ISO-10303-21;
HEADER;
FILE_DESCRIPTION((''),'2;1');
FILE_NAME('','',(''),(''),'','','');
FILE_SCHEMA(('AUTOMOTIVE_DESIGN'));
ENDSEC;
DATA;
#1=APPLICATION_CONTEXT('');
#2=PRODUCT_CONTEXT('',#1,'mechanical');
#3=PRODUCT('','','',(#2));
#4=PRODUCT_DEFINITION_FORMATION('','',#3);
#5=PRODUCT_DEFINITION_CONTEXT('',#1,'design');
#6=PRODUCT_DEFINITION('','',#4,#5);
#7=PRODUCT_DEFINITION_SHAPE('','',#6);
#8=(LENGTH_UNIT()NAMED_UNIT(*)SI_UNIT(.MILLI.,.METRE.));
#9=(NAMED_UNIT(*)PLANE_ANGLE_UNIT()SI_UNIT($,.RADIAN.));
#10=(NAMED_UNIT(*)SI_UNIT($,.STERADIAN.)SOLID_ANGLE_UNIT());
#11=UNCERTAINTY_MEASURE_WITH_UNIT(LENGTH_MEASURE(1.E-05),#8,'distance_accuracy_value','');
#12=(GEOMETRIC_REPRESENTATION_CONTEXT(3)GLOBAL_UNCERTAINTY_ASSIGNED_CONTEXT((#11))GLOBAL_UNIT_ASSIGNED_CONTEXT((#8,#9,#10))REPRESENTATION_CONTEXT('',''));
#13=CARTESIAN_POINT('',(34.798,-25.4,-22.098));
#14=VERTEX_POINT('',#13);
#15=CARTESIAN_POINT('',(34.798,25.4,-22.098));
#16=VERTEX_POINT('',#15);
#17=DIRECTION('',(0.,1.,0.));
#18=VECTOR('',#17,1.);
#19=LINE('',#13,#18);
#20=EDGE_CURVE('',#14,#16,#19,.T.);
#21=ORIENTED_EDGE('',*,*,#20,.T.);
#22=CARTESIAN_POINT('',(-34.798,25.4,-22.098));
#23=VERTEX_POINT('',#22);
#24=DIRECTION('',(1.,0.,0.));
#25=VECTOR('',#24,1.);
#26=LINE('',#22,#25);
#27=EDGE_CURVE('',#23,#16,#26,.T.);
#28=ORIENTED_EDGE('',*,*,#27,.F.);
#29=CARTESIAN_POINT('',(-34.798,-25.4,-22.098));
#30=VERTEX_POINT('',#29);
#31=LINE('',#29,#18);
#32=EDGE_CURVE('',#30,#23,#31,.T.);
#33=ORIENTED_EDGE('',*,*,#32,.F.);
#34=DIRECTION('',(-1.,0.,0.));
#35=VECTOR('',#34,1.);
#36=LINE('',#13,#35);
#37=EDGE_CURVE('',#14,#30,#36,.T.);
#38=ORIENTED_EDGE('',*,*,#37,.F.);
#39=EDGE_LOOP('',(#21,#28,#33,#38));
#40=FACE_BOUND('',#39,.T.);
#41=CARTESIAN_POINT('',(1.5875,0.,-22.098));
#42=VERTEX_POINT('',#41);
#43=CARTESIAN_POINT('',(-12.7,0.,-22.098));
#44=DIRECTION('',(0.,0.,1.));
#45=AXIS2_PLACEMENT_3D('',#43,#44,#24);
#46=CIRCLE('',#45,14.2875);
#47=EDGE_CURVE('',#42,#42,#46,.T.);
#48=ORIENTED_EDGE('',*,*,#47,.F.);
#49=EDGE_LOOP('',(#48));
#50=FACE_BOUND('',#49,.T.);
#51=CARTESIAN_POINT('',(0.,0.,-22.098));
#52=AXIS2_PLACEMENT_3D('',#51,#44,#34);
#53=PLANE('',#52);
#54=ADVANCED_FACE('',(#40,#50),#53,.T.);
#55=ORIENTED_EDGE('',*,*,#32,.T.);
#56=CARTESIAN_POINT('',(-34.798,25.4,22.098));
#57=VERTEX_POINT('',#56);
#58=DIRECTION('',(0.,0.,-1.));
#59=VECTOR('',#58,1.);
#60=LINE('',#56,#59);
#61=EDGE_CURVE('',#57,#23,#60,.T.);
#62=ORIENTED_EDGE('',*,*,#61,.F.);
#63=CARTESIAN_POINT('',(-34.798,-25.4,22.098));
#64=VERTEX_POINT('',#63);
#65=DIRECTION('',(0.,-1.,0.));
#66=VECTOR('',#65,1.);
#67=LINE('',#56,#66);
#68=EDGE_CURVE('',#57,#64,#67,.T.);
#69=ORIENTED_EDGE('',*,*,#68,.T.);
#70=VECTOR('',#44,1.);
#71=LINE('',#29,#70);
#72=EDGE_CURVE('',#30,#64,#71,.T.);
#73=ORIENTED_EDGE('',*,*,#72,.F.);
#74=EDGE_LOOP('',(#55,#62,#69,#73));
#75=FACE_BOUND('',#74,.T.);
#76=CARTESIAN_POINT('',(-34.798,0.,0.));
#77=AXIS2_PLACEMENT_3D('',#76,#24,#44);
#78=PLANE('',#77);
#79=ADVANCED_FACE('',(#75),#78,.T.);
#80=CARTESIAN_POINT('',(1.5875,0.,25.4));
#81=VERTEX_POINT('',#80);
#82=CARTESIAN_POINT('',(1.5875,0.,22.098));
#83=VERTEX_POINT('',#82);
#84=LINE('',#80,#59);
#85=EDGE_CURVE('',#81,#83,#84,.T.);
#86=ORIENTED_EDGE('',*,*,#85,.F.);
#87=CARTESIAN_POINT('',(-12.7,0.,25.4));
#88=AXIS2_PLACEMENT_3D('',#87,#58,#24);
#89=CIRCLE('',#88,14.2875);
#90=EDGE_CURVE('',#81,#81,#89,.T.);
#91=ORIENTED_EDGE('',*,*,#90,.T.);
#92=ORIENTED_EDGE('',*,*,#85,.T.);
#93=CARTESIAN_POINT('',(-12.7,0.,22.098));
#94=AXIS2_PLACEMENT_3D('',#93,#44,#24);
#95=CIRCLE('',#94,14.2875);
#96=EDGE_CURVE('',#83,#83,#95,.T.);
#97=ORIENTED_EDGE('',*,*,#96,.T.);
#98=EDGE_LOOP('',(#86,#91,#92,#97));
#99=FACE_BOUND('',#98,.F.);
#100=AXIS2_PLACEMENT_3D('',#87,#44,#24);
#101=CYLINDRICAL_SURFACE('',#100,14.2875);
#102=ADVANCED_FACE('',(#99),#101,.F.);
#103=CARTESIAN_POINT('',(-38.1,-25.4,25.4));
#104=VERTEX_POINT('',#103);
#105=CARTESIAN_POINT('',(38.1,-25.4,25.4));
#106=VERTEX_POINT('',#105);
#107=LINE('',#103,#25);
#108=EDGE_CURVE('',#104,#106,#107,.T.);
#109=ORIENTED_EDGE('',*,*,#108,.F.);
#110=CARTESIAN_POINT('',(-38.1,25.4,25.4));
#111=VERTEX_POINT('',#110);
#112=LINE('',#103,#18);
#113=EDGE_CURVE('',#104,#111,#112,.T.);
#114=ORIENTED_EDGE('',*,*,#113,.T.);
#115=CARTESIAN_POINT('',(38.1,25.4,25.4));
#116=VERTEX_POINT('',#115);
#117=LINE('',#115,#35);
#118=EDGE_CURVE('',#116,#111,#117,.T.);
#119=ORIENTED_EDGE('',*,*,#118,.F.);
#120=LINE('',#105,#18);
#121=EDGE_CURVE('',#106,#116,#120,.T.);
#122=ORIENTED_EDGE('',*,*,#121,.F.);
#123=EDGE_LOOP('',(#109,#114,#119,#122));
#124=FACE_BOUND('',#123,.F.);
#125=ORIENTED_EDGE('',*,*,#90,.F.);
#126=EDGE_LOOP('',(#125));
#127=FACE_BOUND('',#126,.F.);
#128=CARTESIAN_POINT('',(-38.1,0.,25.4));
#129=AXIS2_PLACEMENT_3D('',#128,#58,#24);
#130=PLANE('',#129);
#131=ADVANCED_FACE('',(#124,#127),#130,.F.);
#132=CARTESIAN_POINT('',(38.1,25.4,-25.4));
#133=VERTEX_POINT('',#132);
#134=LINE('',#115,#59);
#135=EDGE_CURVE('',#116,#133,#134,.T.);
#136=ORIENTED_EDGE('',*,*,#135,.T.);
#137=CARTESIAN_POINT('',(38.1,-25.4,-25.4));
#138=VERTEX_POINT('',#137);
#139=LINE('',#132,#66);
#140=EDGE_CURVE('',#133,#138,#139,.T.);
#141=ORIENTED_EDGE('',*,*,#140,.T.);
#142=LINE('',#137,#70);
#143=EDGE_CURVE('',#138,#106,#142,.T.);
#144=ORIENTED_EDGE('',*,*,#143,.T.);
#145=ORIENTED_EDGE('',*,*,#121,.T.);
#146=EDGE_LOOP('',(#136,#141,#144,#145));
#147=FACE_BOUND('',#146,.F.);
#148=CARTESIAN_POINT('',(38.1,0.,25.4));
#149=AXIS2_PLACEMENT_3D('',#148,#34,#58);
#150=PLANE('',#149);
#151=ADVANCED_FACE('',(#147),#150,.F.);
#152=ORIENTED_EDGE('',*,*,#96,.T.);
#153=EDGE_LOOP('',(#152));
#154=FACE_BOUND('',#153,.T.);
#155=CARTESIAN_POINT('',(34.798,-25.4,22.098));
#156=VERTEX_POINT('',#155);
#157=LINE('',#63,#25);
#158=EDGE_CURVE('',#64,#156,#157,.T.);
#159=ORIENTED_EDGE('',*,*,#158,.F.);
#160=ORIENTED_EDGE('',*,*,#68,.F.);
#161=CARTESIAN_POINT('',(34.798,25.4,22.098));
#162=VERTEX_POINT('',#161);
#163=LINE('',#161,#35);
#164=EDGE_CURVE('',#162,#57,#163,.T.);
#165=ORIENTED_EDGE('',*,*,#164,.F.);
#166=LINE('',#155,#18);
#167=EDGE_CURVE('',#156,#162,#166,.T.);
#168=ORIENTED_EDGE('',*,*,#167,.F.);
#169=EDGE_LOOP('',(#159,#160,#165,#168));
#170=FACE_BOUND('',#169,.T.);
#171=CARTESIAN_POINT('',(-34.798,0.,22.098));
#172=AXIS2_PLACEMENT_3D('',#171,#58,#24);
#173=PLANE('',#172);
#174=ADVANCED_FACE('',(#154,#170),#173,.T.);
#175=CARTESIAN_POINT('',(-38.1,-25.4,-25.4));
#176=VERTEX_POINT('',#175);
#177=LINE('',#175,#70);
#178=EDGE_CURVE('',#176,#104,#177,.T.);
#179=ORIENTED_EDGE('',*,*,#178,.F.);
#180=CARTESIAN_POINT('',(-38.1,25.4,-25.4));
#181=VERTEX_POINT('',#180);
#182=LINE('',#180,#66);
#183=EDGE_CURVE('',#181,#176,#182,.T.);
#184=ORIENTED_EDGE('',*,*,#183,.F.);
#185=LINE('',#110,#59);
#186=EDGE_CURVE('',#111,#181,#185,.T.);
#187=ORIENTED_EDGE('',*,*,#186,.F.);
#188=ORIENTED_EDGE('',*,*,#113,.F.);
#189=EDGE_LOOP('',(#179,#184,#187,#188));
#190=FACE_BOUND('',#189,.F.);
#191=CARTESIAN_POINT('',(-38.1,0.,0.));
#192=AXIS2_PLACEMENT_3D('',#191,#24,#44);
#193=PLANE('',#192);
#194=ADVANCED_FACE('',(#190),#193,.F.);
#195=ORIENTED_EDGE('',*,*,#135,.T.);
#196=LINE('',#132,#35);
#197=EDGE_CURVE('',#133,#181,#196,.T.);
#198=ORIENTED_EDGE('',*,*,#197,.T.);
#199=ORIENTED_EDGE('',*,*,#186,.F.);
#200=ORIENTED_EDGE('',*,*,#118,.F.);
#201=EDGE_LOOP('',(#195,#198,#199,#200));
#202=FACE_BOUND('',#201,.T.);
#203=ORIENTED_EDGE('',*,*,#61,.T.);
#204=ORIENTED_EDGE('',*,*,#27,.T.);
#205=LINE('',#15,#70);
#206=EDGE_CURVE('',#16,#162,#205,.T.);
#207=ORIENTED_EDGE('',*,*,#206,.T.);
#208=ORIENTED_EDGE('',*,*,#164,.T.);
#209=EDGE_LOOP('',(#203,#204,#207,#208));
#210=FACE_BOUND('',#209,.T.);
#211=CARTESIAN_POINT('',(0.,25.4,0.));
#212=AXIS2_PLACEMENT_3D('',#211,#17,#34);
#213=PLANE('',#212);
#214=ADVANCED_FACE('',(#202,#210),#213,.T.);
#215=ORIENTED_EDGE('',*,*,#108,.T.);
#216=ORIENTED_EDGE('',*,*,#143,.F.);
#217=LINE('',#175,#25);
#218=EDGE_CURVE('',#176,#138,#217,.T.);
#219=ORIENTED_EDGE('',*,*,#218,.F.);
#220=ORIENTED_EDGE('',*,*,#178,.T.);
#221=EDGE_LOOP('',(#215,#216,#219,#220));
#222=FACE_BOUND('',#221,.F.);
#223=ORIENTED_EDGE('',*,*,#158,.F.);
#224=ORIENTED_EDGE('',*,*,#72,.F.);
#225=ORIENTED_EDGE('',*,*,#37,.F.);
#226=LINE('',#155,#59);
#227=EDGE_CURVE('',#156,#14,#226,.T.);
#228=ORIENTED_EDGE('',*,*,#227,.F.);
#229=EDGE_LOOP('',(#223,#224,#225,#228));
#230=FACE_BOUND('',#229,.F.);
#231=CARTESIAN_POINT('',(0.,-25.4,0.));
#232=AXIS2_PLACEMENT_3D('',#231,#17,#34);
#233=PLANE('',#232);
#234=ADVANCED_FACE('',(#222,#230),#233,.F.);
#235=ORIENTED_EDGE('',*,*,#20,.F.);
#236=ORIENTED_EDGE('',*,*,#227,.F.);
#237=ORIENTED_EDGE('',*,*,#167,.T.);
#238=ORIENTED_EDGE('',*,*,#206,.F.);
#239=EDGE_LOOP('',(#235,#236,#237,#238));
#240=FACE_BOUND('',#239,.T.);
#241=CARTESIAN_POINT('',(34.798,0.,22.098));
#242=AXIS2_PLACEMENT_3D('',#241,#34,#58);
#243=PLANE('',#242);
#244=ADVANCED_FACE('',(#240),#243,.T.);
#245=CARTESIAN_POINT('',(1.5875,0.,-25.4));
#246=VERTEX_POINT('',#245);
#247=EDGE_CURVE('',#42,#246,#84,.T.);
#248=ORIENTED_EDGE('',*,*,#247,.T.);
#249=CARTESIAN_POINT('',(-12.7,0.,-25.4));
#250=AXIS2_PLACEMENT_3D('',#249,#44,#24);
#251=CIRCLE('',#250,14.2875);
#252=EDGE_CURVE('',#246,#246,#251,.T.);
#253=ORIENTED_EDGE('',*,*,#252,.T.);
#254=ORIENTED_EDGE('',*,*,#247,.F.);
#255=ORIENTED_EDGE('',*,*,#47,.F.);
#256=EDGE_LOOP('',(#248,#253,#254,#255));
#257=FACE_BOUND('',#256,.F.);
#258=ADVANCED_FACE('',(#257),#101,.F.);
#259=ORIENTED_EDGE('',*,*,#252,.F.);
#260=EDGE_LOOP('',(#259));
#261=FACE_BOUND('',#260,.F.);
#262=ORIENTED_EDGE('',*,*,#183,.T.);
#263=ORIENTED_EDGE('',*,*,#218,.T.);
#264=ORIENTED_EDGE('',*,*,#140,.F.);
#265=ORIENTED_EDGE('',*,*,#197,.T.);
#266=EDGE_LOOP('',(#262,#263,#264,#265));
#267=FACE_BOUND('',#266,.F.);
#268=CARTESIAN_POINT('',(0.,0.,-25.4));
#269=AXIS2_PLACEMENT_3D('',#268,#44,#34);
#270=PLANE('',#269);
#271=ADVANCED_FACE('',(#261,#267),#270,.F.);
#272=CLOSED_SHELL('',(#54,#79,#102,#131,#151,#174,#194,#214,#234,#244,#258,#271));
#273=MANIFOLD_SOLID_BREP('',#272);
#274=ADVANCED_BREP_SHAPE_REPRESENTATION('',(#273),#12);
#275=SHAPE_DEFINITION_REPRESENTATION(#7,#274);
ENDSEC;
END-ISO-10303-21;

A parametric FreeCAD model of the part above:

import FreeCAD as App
import Part
import Sketcher
from FreeCAD import Vector
Q = App.Units.Quantity


def add_polygon(sketch, points):
    """Adds a closed chain of lines whose ends are joined by coincident constraints."""
    first, n = sketch.GeometryCount, len(points)
    for a, b in zip(points, points[1:] + points[:1]):
        sketch.addGeometry(Part.LineSegment(App.Vector(*a, 0), App.Vector(*b, 0)), False)
    for i in range(n):
        sketch.addConstraint(Sketcher.Constraint("Coincident", first + i, 2, first + (i + 1) % n, 1))

doc = App.newDocument("Part")
params = doc.addObject("Spreadsheet::Sheet", "Params")
for row, (alias, value) in enumerate([
    ("sketch1_width", "3 in"),
    ("sketch1_height", "2 in"),
    ("pad1_length", "2 in"),
    ("sketch2_diameter", "1.125 in"),
    ("pocket1_length", "2 in"),
], start=1):
    params.set(f"A{row}", alias)
    params.set(f"B{row}", "=" + value)
    params.setAlias(f"B{row}", alias)

body = doc.addObject("PartDesign::Body", "Body")

sketch1 = body.newObject("Sketcher::SketchObject", "Sketch")
sketch1.AttachmentSupport = (doc.getObject("XZ_Plane"), [""])
sketch1.MapMode = "FlatFace"
add_polygon(sketch1, [(-38.1, 25.4), (38.1, 25.4), (38.1, -25.4), (-38.1, -25.4)])
add_polygon(sketch1, [(-34.798, 22.098), (-34.798, -22.098), (34.798, -22.098), (34.798, 22.098)])
sketch1.addConstraint([
    Sketcher.Constraint("Horizontal", 0),
    Sketcher.Constraint("Vertical", 1),
    Sketcher.Constraint("Horizontal", 2),
    Sketcher.Constraint("Vertical", 3),
    Sketcher.Constraint("Vertical", 4),
    Sketcher.Constraint("Horizontal", 5),
    Sketcher.Constraint("Vertical", 6),
    Sketcher.Constraint("Horizontal", 7),
    Sketcher.Constraint("Symmetric", 0, 2, 2, 2, -1, 1),
    Sketcher.Constraint("Symmetric", 4, 2, 6, 2, -1, 1),
    Sketcher.Constraint("DistanceX", 0, 1, 0, 2, Q("3 in")),
    Sketcher.Constraint("DistanceY", 1, 2, 1, 1, Q("2 in")),
    Sketcher.Constraint("DistanceX", 2, 2, 4, 2, Q("0.13 in")),
    Sketcher.Constraint("DistanceY", 2, 2, 4, 2, Q("0.13 in")),
])
sketch1.setExpression("Constraints[18]", "Params.sketch1_width")
sketch1.setExpression("Constraints[19]", "Params.sketch1_height")
pad1 = body.newObject("PartDesign::Pad", "Pad")
pad1.Profile = sketch1
pad1.setExpression("Length", "Params.pad1_length")
pad1.Midplane = True

sketch2 = body.newObject("Sketcher::SketchObject", "Sketch001")
sketch2.AttachmentSupport = (doc.getObject("XY_Plane"), [""])
sketch2.MapMode = "FlatFace"
sketch2.AttachmentOffset = App.Placement(Vector(0, 0, 1 * 25.4), App.Rotation())
sketch2.addGeometry(Part.Circle(Vector(-12.7, 0, 0), Vector(0, 0, 1), 14.2875), False)
sketch2.addConstraint([
    Sketcher.Constraint("PointOnObject", 0, 3, -1),
    Sketcher.Constraint("Diameter", 0, Q("1.125 in")),
    Sketcher.Constraint("DistanceX", 0, 3, -1, 1, Q("0.5 in")),
])
sketch2.setExpression("Constraints[1]", "Params.sketch2_diameter")
pocket1 = body.newObject("PartDesign::Pocket", "Pocket")
pocket1.Profile = sketch2
pocket1.setExpression("Length", "Params.pocket1_length")

doc.recompute()
